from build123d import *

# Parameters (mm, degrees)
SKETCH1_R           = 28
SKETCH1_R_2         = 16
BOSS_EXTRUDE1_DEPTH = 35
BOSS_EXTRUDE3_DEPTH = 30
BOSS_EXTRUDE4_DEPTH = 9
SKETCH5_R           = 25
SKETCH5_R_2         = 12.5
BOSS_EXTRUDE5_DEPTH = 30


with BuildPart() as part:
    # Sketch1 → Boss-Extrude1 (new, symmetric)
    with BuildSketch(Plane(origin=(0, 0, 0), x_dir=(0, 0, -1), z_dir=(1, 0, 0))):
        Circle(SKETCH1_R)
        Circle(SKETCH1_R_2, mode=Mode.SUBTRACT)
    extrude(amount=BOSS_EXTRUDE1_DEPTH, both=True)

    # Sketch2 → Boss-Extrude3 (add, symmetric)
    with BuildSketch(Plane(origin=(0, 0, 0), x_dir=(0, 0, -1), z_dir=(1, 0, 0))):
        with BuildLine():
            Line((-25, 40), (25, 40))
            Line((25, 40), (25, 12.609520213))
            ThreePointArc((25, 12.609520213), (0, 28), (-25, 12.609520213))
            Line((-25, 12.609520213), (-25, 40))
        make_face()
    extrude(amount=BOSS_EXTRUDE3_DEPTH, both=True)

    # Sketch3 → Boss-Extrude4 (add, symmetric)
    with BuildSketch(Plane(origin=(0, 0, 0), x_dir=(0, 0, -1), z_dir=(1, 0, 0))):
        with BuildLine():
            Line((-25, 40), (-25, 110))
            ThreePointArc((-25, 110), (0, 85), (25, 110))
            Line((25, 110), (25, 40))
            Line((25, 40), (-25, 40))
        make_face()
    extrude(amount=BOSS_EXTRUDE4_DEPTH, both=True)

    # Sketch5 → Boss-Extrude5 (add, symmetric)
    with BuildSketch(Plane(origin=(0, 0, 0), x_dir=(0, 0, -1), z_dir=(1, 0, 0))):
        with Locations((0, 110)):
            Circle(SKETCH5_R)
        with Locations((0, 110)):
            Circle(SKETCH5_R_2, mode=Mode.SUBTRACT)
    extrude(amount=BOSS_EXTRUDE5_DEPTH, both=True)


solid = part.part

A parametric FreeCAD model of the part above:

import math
import FreeCAD as App
import Part
import Sketcher
from FreeCAD import Vector

doc = App.newDocument("Part")
body = doc.addObject("PartDesign::Body", "Body")

# Sketch on YZ plane
sketch1 = body.newObject("Sketcher::SketchObject", "Sketch")
sketch1.AttachmentSupport = (doc.getObject("YZ_Plane"), [""])
sketch1.MapMode = "FlatFace"
sketch1.addGeometry([
    Part.Circle(Vector(0, 0, 0), Vector(0, 0, 1), 28),
    Part.Circle(Vector(0, 0, 0), Vector(0, 0, 1), 16),
], False)
sketch1.addConstraint([
    Sketcher.Constraint("Coincident", 0, 3, -1, 1),
    Sketcher.Constraint("Coincident", 1, 3, -1, 1),
    Sketcher.Constraint("Diameter", 0, 56.0),
    Sketcher.Constraint("Diameter", 1, 32.0),
])
pad1 = body.newObject("PartDesign::Pad", "Pad")
pad1.Profile = sketch1
pad1.Length = 70
pad1.Midplane = True

# Sketch on YZ plane
sketch2 = body.newObject("Sketcher::SketchObject", "Sketch001")
sketch2.AttachmentSupport = (doc.getObject("YZ_Plane"), [""])
sketch2.MapMode = "FlatFace"
sketch2.addGeometry([
    Part.LineSegment(Vector(40, -25, 0), Vector(40, 25, 0)),
    Part.LineSegment(Vector(40, 25, 0), Vector(13, 25, 0)),
    Part.ArcOfCircle(Part.Circle(Vector(0, 0, 0), Vector(0, 0, 1), 28), math.radians(-63), math.radians(63)),
    Part.LineSegment(Vector(13, -25, 0), Vector(40, -25, 0)),
], False)
sketch2.addConstraint([
    Sketcher.Constraint("Coincident", 0, 2, 1, 1),
    Sketcher.Constraint("Coincident", 1, 2, 2, 2),
    Sketcher.Constraint("Coincident", 2, 1, 3, 1),
    Sketcher.Constraint("Coincident", 3, 2, 0, 1),
    Sketcher.Constraint("Vertical", 0),
    Sketcher.Constraint("Horizontal", 1),
    Sketcher.Constraint("Horizontal", 3),
    Sketcher.Constraint("Coincident", 2, 3, -1, 1),
    Sketcher.Constraint("Vertical", 1, 2, 2, 1),
    Sketcher.Constraint("Radius", 2, 28.0),
    Sketcher.Constraint("DistanceY", 0, 1, 0, 2, 50.0),
    Sketcher.Constraint("DistanceX", -1, 1, 0, 2, 40.0),
])
pad2 = body.newObject("PartDesign::Pad", "Pad001")
pad2.Profile = sketch2
pad2.Length = 60
pad2.Midplane = True

# Sketch on YZ plane
sketch3 = body.newObject("Sketcher::SketchObject", "Sketch002")
sketch3.AttachmentSupport = (doc.getObject("YZ_Plane"), [""])
sketch3.MapMode = "FlatFace"
sketch3.addGeometry([
    Part.LineSegment(Vector(110, 25, 0), Vector(40, 25, 0)),
    Part.LineSegment(Vector(40, 25, 0), Vector(40, -25, 0)),
    Part.LineSegment(Vector(40, -25, 0), Vector(110, -25, 0)),
    Part.ArcOfCircle(Part.Circle(Vector(110, 0, 0), Vector(0, 0, 1), 25), math.radians(90), math.radians(270)),
], False)
sketch3.addConstraint([
    Sketcher.Constraint("Coincident", 0, 2, 1, 1),
    Sketcher.Constraint("Coincident", 1, 2, 2, 1),
    Sketcher.Constraint("Tangent", 2, 2, 3, 2),
    Sketcher.Constraint("Tangent", 3, 1, 0, 1),
    Sketcher.Constraint("Horizontal", 0),
    Sketcher.Constraint("Vertical", 1),
    Sketcher.Constraint("Horizontal", 2),
    Sketcher.Constraint("PointOnObject", 3, 3, -1),
    Sketcher.Constraint("Radius", 3, 25.0),
    Sketcher.Constraint("DistanceX", 0, 2, 0, 1, 70.0),
    Sketcher.Constraint("DistanceX", -1, 1, 3, 3, 110.0),
])
pad3 = body.newObject("PartDesign::Pad", "Pad002")
pad3.Profile = sketch3
pad3.Length = 18
pad3.Midplane = True

# Sketch on YZ plane
sketch4 = body.newObject("Sketcher::SketchObject", "Sketch003")
sketch4.AttachmentSupport = (doc.getObject("YZ_Plane"), [""])
sketch4.MapMode = "FlatFace"
sketch4.addGeometry([
    Part.Circle(Vector(110, 0, 0), Vector(0, 0, 1), 25),
    Part.Circle(Vector(110, 0, 0), Vector(0, 0, 1), 12),
], False)
sketch4.addConstraint([
    Sketcher.Constraint("Coincident", 1, 3, 0, 3),
    Sketcher.Constraint("PointOnObject", 0, 3, -1),
    Sketcher.Constraint("Diameter", 0, 50.0),
    Sketcher.Constraint("Diameter", 1, 25.0),
    Sketcher.Constraint("DistanceX", -1, 1, 0, 3, 110.0),
])
pad4 = body.newObject("PartDesign::Pad", "Pad003")
pad4.Profile = sketch4
pad4.Length = 60
pad4.Midplane = True

doc.recompute()
